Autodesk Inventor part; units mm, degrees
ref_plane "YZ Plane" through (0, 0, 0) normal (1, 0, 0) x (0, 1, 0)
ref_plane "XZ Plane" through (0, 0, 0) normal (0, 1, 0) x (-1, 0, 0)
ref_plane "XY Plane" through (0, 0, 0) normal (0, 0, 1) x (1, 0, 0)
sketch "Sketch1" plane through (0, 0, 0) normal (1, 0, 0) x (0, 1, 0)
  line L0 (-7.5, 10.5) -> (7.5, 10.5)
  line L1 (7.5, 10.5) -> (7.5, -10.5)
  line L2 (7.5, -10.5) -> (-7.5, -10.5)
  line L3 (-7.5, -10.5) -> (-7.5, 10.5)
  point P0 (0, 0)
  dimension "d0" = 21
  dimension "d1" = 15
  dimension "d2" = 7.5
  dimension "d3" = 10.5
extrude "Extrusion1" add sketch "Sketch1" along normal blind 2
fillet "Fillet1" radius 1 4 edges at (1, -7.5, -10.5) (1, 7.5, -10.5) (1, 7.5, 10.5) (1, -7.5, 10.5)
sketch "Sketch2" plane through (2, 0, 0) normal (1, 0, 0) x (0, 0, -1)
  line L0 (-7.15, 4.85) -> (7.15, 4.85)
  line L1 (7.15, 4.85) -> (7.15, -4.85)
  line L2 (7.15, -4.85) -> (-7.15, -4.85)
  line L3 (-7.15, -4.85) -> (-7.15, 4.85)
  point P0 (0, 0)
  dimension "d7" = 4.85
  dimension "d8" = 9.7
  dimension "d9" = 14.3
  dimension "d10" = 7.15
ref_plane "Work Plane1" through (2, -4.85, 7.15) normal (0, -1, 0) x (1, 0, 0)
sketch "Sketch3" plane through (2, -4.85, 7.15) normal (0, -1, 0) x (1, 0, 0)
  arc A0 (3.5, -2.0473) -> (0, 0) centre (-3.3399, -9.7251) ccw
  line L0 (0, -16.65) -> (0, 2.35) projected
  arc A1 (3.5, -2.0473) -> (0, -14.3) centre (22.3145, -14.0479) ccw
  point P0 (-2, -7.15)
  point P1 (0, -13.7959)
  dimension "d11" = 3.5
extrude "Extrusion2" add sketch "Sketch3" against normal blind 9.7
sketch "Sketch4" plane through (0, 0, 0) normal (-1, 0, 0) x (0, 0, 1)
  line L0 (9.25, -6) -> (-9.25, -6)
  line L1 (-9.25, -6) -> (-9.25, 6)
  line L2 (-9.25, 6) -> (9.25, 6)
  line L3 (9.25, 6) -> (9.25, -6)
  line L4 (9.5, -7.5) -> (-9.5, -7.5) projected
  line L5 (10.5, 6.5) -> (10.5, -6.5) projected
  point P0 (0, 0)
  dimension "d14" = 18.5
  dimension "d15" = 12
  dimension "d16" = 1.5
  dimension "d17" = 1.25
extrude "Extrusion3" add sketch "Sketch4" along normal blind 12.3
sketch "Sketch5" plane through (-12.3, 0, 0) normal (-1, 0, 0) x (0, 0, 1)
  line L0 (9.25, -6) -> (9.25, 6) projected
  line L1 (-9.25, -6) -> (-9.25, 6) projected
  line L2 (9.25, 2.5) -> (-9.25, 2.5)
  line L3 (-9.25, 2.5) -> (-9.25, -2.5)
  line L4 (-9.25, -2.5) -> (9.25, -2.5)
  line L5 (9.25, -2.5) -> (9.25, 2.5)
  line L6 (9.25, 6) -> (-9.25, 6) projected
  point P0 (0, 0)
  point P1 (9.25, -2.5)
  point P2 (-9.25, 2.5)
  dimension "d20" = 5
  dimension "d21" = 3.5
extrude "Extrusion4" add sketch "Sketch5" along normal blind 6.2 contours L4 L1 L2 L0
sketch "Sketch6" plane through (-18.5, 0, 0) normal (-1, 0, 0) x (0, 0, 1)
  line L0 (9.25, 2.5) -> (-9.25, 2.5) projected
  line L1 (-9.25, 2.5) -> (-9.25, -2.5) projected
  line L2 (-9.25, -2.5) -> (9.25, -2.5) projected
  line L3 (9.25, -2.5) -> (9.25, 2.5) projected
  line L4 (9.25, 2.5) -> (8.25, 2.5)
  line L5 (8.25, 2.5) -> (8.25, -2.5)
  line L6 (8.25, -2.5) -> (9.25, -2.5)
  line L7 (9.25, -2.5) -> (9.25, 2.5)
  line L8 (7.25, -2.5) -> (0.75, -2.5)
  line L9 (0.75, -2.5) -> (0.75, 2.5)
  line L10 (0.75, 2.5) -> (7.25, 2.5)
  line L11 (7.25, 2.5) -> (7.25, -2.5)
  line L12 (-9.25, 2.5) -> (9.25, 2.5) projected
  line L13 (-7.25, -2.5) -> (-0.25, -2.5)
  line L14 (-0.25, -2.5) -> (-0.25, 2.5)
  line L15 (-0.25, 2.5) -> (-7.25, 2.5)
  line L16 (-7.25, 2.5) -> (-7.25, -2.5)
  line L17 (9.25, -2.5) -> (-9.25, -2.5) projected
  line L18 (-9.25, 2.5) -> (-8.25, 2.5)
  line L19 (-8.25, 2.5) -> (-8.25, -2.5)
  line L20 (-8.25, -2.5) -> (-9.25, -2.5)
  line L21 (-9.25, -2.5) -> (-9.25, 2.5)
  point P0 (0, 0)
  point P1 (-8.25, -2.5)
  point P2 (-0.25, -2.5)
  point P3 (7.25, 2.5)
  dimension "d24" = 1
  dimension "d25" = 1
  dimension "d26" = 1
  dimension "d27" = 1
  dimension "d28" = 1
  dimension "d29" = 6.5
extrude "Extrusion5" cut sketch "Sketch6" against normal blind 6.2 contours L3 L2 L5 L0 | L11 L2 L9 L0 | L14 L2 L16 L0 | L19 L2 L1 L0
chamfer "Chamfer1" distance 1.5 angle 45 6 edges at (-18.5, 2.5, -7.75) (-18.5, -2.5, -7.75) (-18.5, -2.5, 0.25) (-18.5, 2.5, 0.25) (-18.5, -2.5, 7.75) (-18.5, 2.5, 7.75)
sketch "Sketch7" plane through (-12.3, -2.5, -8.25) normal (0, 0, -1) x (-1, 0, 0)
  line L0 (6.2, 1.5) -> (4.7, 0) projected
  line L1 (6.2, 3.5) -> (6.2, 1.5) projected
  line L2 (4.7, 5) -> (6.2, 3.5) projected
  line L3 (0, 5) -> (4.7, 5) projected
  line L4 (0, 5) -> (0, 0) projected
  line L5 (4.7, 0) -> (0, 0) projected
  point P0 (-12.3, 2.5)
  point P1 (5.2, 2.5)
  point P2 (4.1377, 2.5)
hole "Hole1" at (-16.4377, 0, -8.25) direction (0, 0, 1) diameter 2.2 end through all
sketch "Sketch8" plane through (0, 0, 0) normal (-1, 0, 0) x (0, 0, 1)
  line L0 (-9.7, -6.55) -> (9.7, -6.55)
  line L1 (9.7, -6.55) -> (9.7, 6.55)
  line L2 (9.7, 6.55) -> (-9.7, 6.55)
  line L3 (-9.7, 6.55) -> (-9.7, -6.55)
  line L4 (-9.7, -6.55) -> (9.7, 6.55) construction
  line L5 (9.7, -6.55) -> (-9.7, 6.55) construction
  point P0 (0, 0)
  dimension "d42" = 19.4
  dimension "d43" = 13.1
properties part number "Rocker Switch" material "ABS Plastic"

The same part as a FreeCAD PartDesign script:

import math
import FreeCAD as App
import Part
import Sketcher
from FreeCAD import Vector
Q = App.Units.Quantity


def edges_at(feature, points):
    """Names of the edges that pass closest to the given points."""
    edges = feature.Shape.Edges
    near = lambda p: min(range(len(edges)), key=lambda i: edges[i].distToShape(Part.Vertex(*p))[0])
    return sorted({f"Edge{near(p) + 1}" for p in points})


def add_polygon(sketch, points):
    """Adds a closed chain of lines whose ends are joined by coincident constraints."""
    first, n = sketch.GeometryCount, len(points)
    for a, b in zip(points, points[1:] + points[:1]):
        sketch.addGeometry(Part.LineSegment(App.Vector(*a, 0), App.Vector(*b, 0)), False)
    for i in range(n):
        sketch.addConstraint(Sketcher.Constraint("Coincident", first + i, 2, first + (i + 1) % n, 1))

doc = App.newDocument("Part")
body = doc.addObject("PartDesign::Body", "Body")

# Sketch on YZ plane
sketch1 = doc.addObject("Sketcher::SketchObject", "Sketch")
body.addObject(sketch1)
sketch1.AttachmentSupport = (doc.YZ_Plane, [""])
sketch1.MapMode = "FlatFace"
add_polygon(sketch1, [(8, 10), (-8, 10), (-8, -10), (8, -10)])  # lines 0-3
sketch1.addConstraint([
    Sketcher.Constraint("Horizontal", 0),
    Sketcher.Constraint("Vertical", 1),
    Sketcher.Constraint("Horizontal", 2),
    Sketcher.Constraint("Vertical", 3),
    Sketcher.Constraint("Symmetric", 0, 2, 2, 2, -1, 1),
    Sketcher.Constraint("DistanceX", 0, 2, 0, 1, Q("15 mm")),
    Sketcher.Constraint("DistanceY", 1, 2, 1, 1, Q("21 mm")),
])
pad1 = doc.addObject("PartDesign::Pad", "Pad")
body.addObject(pad1)
pad1.Profile = sketch1
pad1.Length = 2
doc.recompute()

fillet = doc.addObject("PartDesign::Fillet", "Fillet")
body.addObject(fillet)
fillet.Base = (pad1, edges_at(pad1, [
    (1, -7.5, -10.5),
    (1, 7.5, -10.5),
    (1, 7.5, 10.5),
    (1, -7.5, 10.5),
]))
fillet.Radius = 1

# Sketch on XZ plane
sketch2 = doc.addObject("Sketcher::SketchObject", "Sketch001")
body.addObject(sketch2)
sketch2.AttachmentSupport = (doc.XZ_Plane, [""])
sketch2.MapMode = "FlatFace"
sketch2.AttachmentOffset = App.Placement(Vector(0, 0, 4.85), App.Rotation())
sketch2.addGeometry([
    Part.ArcOfCircle(Part.Circle(Vector(24.3, -6.9, 0), Vector(0, 0, 1), 22.3), math.radians(147), math.radians(181)),
    Part.ArcOfCircle(Part.Circle(Vector(-1.3, -2.6, 0), Vector(0, 0, 1), 10.3), math.radians(48), math.radians(71)),
    Part.LineSegment(Vector(2, 7.2, 0), Vector(2, -7.2, 0)),
], False)
sketch2.addConstraint([
    Sketcher.Constraint("Coincident", 0, 1, 1, 1),
    Sketcher.Constraint("Coincident", 1, 2, 2, 1),
    Sketcher.Constraint("Coincident", 2, 2, 0, 2),
    Sketcher.Constraint("Vertical", 2),
    Sketcher.Constraint("DistanceX", 1, 2, 0, 1, Q("3.5 mm")),
    Sketcher.Constraint("DistanceY", 2, 2, 2, 1, Q("14.3 mm")),
    Sketcher.Constraint("DistanceX", -1, 1, 1, 2, Q("2 mm")),
    Sketcher.Constraint("Radius", 0, Q("22.316 mm")),
    Sketcher.Constraint("Radius", 1, Q("10.2826 mm")),
    Sketcher.Constraint("DistanceX", 1, 3, -1, 1, Q("1.34 mm")),
    Sketcher.Constraint("DistanceY", -1, 1, 1, 2, Q("7.15 mm")),
])
pad2 = doc.addObject("PartDesign::Pad", "Pad001")
body.addObject(pad2)
pad2.Profile = sketch2
pad2.Length = 9.7
pad2.Reversed = True

# Sketch on YZ plane
sketch3 = doc.addObject("Sketcher::SketchObject", "Sketch002")
body.addObject(sketch3)
sketch3.AttachmentSupport = (doc.YZ_Plane, [""])
sketch3.MapMode = "FlatFace"
add_polygon(sketch3, [(-6, -9), (-6, 9), (6, 9), (6, -9)])  # lines 0-3
sketch3.addConstraint([
    Sketcher.Constraint("Vertical", 0),
    Sketcher.Constraint("Horizontal", 1),
    Sketcher.Constraint("Vertical", 2),
    Sketcher.Constraint("Horizontal", 3),
    Sketcher.Constraint("Symmetric", 0, 2, 2, 2, -1, 1),
    Sketcher.Constraint("DistanceX", 1, 1, 1, 2, Q("12 mm")),
    Sketcher.Constraint("DistanceY", 0, 1, 0, 2, Q("18.5 mm")),
])
pad3 = doc.addObject("PartDesign::Pad", "Pad002")
body.addObject(pad3)
pad3.Profile = sketch3
pad3.Length = 12.3
pad3.Reversed = True

# Sketch on YZ plane
sketch4 = doc.addObject("Sketcher::SketchObject", "Sketch003")
body.addObject(sketch4)
sketch4.AttachmentSupport = (doc.YZ_Plane, [""])
sketch4.MapMode = "FlatFace"
sketch4.AttachmentOffset = App.Placement(Vector(0, 0, -12.3), App.Rotation())
add_polygon(sketch4, [(-2, -9), (-2, 9), (2, 9), (2, -9)])  # lines 0-3
sketch4.addConstraint([
    Sketcher.Constraint("Vertical", 0),
    Sketcher.Constraint("Horizontal", 1),
    Sketcher.Constraint("Vertical", 2),
    Sketcher.Constraint("Horizontal", 3),
    Sketcher.Constraint("Symmetric", 0, 2, 2, 2, -1, 1),
    Sketcher.Constraint("DistanceX", 1, 1, 1, 2, Q("5 mm")),
    Sketcher.Constraint("DistanceY", 0, 1, 0, 2, Q("18.5 mm")),
])
pad4 = doc.addObject("PartDesign::Pad", "Pad003")
body.addObject(pad4)
pad4.Profile = sketch4
pad4.Length = 6.2
pad4.Reversed = True

# Sketch on YZ plane
sketch5 = doc.addObject("Sketcher::SketchObject", "Sketch004")
body.addObject(sketch5)
sketch5.AttachmentSupport = (doc.YZ_Plane, [""])
sketch5.MapMode = "FlatFace"
sketch5.AttachmentOffset = App.Placement(Vector(0, 0, -18.5), App.Rotation())
add_polygon(sketch5, [(-2.5, 9.2), (2.5, 9.2), (2.5, 8.2), (-2.5, 8.2)])  # lines 0-3
add_polygon(sketch5, [(-2.5, 7.2), (2.5, 7.2), (2.5, 0.8), (-2.5, 0.8)])  # lines 4-7
add_polygon(sketch5, [(-2.5, -0.2), (2.5, -0.2), (2.5, -7.2), (-2.5, -7.2)])  # lines 8-11
add_polygon(sketch5, [(-2.5, -8.2), (2.5, -8.2), (2.5, -9.2), (-2.5, -9.2)])  # lines 12-15
sketch5.addConstraint([
    Sketcher.Constraint("Horizontal", 0),
    Sketcher.Constraint("Vertical", 1),
    Sketcher.Constraint("Horizontal", 2),
    Sketcher.Constraint("Vertical", 3),
    Sketcher.Constraint("Horizontal", 4),
    Sketcher.Constraint("Vertical", 5),
    Sketcher.Constraint("Horizontal", 6),
    Sketcher.Constraint("Vertical", 7),
    Sketcher.Constraint("Horizontal", 8),
    Sketcher.Constraint("Vertical", 9),
    Sketcher.Constraint("Horizontal", 10),
    Sketcher.Constraint("Vertical", 11),
    Sketcher.Constraint("Horizontal", 12),
    Sketcher.Constraint("Vertical", 13),
    Sketcher.Constraint("Horizontal", 14),
    Sketcher.Constraint("Vertical", 15),
    Sketcher.Constraint("Symmetric", 7, 2, 9, 2, -1, 1),
    Sketcher.Constraint("Symmetric", 2, 2, 12, 2, -1, 1),
    Sketcher.Constraint("Symmetric", 0, 2, 14, 2, -1, 1),
    Sketcher.Constraint("Vertical", 1, 2, 4, 2),
    Sketcher.Constraint("Vertical", 3, 2, 6, 2),
    Sketcher.Constraint("Vertical", 5, 2, 8, 2),
    Sketcher.Constraint("Vertical", 7, 2, 10, 2),
    Sketcher.Constraint("DistanceY", 1, 2, 1, 1, Q("1 mm")),
    Sketcher.Constraint("DistanceY", 5, 2, 5, 1, Q("6.5 mm")),
    Sketcher.Constraint("DistanceY", 4, 2, 1, 2, Q("1 mm")),
    Sketcher.Constraint("DistanceY", 8, 2, 5, 2, Q("1 mm")),
    Sketcher.Constraint("DistanceX", 0, 1, 0, 2, Q("5 mm")),
    Sketcher.Constraint("DistanceY", 9, 2, 9, 1, Q("7 mm")),
])
pocket1 = doc.addObject("PartDesign::Pocket", "Pocket")
body.addObject(pocket1)
pocket1.Profile = sketch5
pocket1.Length = 6.2
pocket1.Reversed = True
doc.recompute()

chamfer = doc.addObject("PartDesign::Chamfer", "Chamfer")
body.addObject(chamfer)
chamfer.Base = (pocket1, edges_at(pocket1, [
    (-18.5, 2.5, -7.75),
    (-18.5, -2.5, -7.75),
    (-18.5, -2.5, 0.25),
    (-18.5, 2.5, 0.25),
    (-18.5, -2.5, 7.75),
    (-18.5, 2.5, 7.75),
]))
chamfer.Size = 1.5

# Sketch on XY plane
sketch6 = doc.addObject("Sketcher::SketchObject", "Sketch005")
body.addObject(sketch6)
sketch6.AttachmentSupport = (doc.XY_Plane, [""])
sketch6.MapMode = "FlatFace"
sketch6.AttachmentOffset = App.Placement(Vector(0, 0, -8.25), App.Rotation())
sketch6.addGeometry(Part.Circle(Vector(-16.4, 0, 0), Vector(0, 0, 1), 1.1), False)
sketch6.addConstraint([
    Sketcher.Constraint("PointOnObject", 0, 3, -1),
    Sketcher.Constraint("Diameter", 0, Q("2.2 mm")),
    Sketcher.Constraint("DistanceX", 0, 3, -1, 1, Q("16.4377 mm")),
])
doc.recompute()
hole = doc.addObject("PartDesign::Hole", "Hole")
body.addObject(hole)
hole.Profile = sketch6
hole.ThreadType = "None"
hole.Diameter = 2.2
hole.DepthType = "ThroughAll"
hole.Reversed = True

doc.recompute()
